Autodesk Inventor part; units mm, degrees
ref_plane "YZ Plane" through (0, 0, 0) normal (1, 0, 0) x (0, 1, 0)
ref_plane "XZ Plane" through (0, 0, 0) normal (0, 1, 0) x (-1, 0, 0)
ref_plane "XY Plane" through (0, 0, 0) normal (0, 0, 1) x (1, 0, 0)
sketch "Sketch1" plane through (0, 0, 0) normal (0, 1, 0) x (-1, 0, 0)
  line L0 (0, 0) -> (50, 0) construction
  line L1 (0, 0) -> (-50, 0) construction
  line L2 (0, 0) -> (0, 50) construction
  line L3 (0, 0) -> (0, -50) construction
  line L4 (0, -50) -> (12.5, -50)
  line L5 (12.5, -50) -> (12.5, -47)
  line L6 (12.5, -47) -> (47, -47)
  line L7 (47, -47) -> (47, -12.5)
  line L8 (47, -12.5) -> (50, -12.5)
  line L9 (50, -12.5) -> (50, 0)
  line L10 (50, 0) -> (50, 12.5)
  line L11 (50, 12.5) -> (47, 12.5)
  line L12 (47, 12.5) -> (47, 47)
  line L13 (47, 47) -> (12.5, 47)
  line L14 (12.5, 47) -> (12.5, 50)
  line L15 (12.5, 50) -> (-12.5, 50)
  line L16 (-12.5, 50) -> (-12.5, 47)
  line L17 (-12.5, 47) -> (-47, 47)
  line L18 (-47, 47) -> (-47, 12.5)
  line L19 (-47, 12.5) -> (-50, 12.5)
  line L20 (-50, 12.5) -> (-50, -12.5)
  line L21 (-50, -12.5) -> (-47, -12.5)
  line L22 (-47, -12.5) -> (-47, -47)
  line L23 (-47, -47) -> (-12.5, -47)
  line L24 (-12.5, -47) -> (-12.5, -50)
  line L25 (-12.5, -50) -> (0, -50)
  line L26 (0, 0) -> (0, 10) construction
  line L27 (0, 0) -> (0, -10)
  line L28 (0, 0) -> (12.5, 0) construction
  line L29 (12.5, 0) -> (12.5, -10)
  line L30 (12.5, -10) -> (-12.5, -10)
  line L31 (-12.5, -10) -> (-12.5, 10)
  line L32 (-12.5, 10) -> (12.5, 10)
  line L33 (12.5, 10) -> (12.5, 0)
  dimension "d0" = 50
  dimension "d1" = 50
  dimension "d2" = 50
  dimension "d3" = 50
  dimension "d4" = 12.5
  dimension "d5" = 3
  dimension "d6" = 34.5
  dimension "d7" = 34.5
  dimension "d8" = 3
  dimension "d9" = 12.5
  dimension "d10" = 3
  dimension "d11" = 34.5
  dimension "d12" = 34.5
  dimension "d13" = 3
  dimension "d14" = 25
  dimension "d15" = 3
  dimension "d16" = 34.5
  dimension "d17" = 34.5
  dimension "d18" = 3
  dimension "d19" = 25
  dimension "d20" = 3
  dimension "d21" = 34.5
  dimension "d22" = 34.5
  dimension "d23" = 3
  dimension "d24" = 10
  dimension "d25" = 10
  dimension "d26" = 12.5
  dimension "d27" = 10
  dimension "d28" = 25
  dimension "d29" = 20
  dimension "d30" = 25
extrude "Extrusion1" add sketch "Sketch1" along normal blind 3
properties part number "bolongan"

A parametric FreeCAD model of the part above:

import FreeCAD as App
import Part
import Sketcher
from FreeCAD import Vector
Q = App.Units.Quantity


def add_polygon(sketch, points):
    """Adds a closed chain of lines whose ends are joined by coincident constraints."""
    first, n = sketch.GeometryCount, len(points)
    for a, b in zip(points, points[1:] + points[:1]):
        sketch.addGeometry(Part.LineSegment(App.Vector(*a, 0), App.Vector(*b, 0)), False)
    for i in range(n):
        sketch.addConstraint(Sketcher.Constraint("Coincident", first + i, 2, first + (i + 1) % n, 1))

doc = App.newDocument("Part")
params = doc.addObject("Spreadsheet::Sheet", "Params")
for row, (alias, value) in enumerate([
    ("sketch1_width", "25 mm"),
    ("sketch1_width2", "3 mm"),
    ("sketch1_height", "20 mm"),
    ("sketch1_width3", "34.5 mm"),
    ("pad1_length", "3 mm"),
], start=1):
    params.set(f"A{row}", alias)
    params.set(f"B{row}", "=" + value)
    params.setAlias(f"B{row}", alias)

body = doc.addObject("PartDesign::Body", "Body")

sketch1 = doc.addObject("Sketcher::SketchObject", "Sketch")
body.addObject(sketch1)
sketch1.AttachmentSupport = (doc.XZ_Plane, [""])
sketch1.MapMode = "FlatFace"
add_polygon(sketch1, [(12.5, -50), (-12.5, -50), (-12.5, -47), (-47, -47), (-47, -12.5), (-50, -12.5), (-50, 12.5), (-47, 12.5), (-47, 47), (-12.5, 47), (-12.5, 50), (12.5, 50), (12.5, 47), (47, 47), (47, 12.5), (50, 12.5), (50, -12.5), (47, -12.5), (47, -47), (12.5, -47)])
add_polygon(sketch1, [(-12.5, 10), (-12.5, -10), (12.5, -10), (12.5, 10)])
sketch1.addConstraint(Sketcher.Constraint("Horizontal", 0))
sketch1.addConstraint(Sketcher.Constraint("Vertical", 1))
sketch1.addConstraint(Sketcher.Constraint("Horizontal", 2))
sketch1.addConstraint(Sketcher.Constraint("Vertical", 3))
sketch1.addConstraint(Sketcher.Constraint("Horizontal", 4))
sketch1.addConstraint(Sketcher.Constraint("Vertical", 5))
sketch1.addConstraint(Sketcher.Constraint("Horizontal", 6))
sketch1.addConstraint(Sketcher.Constraint("Vertical", 7))
sketch1.addConstraint(Sketcher.Constraint("Horizontal", 8))
sketch1.addConstraint(Sketcher.Constraint("Vertical", 9))
sketch1.addConstraint(Sketcher.Constraint("Horizontal", 10))
sketch1.addConstraint(Sketcher.Constraint("Vertical", 11))
sketch1.addConstraint(Sketcher.Constraint("Horizontal", 12))
sketch1.addConstraint(Sketcher.Constraint("Vertical", 13))
sketch1.addConstraint(Sketcher.Constraint("Horizontal", 14))
sketch1.addConstraint(Sketcher.Constraint("Vertical", 15))
sketch1.addConstraint(Sketcher.Constraint("Horizontal", 16))
sketch1.addConstraint(Sketcher.Constraint("Vertical", 17))
sketch1.addConstraint(Sketcher.Constraint("Horizontal", 18))
sketch1.addConstraint(Sketcher.Constraint("Vertical", 19))
sketch1.addConstraint(Sketcher.Constraint("Vertical", 20))
sketch1.addConstraint(Sketcher.Constraint("Horizontal", 21))
sketch1.addConstraint(Sketcher.Constraint("Vertical", 22))
sketch1.addConstraint(Sketcher.Constraint("Horizontal", 23))
sketch1.addConstraint(Sketcher.Constraint("Symmetric", 0, 2, 10, 2, -1, 1))
sketch1.addConstraint(Sketcher.Constraint("Symmetric", 2, 2, 12, 2, -1, 1))
sketch1.addConstraint(Sketcher.Constraint("Symmetric", 4, 2, 14, 2, -1, 1))
sketch1.addConstraint(Sketcher.Constraint("Symmetric", 6, 2, 16, 2, -1, 1))
sketch1.addConstraint(Sketcher.Constraint("Symmetric", 8, 2, 18, 2, -1, 1))
sketch1.addConstraint(Sketcher.Constraint("Symmetric", 20, 2, 22, 2, -1, 1))
sketch1.addConstraint(Sketcher.Constraint("Symmetric", 8, 2, 11, 2, -2))
sketch1.addConstraint(Sketcher.Constraint("Symmetric", 6, 2, 13, 2, -2))
sketch1.addConstraint(Sketcher.Constraint("Vertical", 9, 2, 20, 2))
sketch1.addConstraint(Sketcher.Constraint("Equal", 16, 1))
sketch1.addConstraint(Sketcher.Constraint("Equal", 18, 3))
sketch1.addConstraint(Sketcher.Constraint("Equal", 23, 5))
sketch1.addConstraint(Sketcher.Constraint("DistanceX", 0, 2, 0, 1, Q("25 mm")))
sketch1.addConstraint(Sketcher.Constraint("DistanceX", 4, 2, 4, 1, Q("3 mm")))
sketch1.addConstraint(Sketcher.Constraint("DistanceY", 20, 2, 20, 1, Q("20 mm")))
sketch1.addConstraint(Sketcher.Constraint("DistanceX", 2, 2, 2, 1, Q("34.5 mm")))
sketch1.setExpression("Constraints[60]", "Params.sketch1_width")
sketch1.setExpression("Constraints[61]", "Params.sketch1_width2")
sketch1.setExpression("Constraints[62]", "Params.sketch1_height")
sketch1.setExpression("Constraints[63]", "Params.sketch1_width3")
pad1 = doc.addObject("PartDesign::Pad", "Pad")
body.addObject(pad1)
pad1.Profile = sketch1
pad1.setExpression("Length", "Params.pad1_length")
pad1.Reversed = True

doc.recompute()
